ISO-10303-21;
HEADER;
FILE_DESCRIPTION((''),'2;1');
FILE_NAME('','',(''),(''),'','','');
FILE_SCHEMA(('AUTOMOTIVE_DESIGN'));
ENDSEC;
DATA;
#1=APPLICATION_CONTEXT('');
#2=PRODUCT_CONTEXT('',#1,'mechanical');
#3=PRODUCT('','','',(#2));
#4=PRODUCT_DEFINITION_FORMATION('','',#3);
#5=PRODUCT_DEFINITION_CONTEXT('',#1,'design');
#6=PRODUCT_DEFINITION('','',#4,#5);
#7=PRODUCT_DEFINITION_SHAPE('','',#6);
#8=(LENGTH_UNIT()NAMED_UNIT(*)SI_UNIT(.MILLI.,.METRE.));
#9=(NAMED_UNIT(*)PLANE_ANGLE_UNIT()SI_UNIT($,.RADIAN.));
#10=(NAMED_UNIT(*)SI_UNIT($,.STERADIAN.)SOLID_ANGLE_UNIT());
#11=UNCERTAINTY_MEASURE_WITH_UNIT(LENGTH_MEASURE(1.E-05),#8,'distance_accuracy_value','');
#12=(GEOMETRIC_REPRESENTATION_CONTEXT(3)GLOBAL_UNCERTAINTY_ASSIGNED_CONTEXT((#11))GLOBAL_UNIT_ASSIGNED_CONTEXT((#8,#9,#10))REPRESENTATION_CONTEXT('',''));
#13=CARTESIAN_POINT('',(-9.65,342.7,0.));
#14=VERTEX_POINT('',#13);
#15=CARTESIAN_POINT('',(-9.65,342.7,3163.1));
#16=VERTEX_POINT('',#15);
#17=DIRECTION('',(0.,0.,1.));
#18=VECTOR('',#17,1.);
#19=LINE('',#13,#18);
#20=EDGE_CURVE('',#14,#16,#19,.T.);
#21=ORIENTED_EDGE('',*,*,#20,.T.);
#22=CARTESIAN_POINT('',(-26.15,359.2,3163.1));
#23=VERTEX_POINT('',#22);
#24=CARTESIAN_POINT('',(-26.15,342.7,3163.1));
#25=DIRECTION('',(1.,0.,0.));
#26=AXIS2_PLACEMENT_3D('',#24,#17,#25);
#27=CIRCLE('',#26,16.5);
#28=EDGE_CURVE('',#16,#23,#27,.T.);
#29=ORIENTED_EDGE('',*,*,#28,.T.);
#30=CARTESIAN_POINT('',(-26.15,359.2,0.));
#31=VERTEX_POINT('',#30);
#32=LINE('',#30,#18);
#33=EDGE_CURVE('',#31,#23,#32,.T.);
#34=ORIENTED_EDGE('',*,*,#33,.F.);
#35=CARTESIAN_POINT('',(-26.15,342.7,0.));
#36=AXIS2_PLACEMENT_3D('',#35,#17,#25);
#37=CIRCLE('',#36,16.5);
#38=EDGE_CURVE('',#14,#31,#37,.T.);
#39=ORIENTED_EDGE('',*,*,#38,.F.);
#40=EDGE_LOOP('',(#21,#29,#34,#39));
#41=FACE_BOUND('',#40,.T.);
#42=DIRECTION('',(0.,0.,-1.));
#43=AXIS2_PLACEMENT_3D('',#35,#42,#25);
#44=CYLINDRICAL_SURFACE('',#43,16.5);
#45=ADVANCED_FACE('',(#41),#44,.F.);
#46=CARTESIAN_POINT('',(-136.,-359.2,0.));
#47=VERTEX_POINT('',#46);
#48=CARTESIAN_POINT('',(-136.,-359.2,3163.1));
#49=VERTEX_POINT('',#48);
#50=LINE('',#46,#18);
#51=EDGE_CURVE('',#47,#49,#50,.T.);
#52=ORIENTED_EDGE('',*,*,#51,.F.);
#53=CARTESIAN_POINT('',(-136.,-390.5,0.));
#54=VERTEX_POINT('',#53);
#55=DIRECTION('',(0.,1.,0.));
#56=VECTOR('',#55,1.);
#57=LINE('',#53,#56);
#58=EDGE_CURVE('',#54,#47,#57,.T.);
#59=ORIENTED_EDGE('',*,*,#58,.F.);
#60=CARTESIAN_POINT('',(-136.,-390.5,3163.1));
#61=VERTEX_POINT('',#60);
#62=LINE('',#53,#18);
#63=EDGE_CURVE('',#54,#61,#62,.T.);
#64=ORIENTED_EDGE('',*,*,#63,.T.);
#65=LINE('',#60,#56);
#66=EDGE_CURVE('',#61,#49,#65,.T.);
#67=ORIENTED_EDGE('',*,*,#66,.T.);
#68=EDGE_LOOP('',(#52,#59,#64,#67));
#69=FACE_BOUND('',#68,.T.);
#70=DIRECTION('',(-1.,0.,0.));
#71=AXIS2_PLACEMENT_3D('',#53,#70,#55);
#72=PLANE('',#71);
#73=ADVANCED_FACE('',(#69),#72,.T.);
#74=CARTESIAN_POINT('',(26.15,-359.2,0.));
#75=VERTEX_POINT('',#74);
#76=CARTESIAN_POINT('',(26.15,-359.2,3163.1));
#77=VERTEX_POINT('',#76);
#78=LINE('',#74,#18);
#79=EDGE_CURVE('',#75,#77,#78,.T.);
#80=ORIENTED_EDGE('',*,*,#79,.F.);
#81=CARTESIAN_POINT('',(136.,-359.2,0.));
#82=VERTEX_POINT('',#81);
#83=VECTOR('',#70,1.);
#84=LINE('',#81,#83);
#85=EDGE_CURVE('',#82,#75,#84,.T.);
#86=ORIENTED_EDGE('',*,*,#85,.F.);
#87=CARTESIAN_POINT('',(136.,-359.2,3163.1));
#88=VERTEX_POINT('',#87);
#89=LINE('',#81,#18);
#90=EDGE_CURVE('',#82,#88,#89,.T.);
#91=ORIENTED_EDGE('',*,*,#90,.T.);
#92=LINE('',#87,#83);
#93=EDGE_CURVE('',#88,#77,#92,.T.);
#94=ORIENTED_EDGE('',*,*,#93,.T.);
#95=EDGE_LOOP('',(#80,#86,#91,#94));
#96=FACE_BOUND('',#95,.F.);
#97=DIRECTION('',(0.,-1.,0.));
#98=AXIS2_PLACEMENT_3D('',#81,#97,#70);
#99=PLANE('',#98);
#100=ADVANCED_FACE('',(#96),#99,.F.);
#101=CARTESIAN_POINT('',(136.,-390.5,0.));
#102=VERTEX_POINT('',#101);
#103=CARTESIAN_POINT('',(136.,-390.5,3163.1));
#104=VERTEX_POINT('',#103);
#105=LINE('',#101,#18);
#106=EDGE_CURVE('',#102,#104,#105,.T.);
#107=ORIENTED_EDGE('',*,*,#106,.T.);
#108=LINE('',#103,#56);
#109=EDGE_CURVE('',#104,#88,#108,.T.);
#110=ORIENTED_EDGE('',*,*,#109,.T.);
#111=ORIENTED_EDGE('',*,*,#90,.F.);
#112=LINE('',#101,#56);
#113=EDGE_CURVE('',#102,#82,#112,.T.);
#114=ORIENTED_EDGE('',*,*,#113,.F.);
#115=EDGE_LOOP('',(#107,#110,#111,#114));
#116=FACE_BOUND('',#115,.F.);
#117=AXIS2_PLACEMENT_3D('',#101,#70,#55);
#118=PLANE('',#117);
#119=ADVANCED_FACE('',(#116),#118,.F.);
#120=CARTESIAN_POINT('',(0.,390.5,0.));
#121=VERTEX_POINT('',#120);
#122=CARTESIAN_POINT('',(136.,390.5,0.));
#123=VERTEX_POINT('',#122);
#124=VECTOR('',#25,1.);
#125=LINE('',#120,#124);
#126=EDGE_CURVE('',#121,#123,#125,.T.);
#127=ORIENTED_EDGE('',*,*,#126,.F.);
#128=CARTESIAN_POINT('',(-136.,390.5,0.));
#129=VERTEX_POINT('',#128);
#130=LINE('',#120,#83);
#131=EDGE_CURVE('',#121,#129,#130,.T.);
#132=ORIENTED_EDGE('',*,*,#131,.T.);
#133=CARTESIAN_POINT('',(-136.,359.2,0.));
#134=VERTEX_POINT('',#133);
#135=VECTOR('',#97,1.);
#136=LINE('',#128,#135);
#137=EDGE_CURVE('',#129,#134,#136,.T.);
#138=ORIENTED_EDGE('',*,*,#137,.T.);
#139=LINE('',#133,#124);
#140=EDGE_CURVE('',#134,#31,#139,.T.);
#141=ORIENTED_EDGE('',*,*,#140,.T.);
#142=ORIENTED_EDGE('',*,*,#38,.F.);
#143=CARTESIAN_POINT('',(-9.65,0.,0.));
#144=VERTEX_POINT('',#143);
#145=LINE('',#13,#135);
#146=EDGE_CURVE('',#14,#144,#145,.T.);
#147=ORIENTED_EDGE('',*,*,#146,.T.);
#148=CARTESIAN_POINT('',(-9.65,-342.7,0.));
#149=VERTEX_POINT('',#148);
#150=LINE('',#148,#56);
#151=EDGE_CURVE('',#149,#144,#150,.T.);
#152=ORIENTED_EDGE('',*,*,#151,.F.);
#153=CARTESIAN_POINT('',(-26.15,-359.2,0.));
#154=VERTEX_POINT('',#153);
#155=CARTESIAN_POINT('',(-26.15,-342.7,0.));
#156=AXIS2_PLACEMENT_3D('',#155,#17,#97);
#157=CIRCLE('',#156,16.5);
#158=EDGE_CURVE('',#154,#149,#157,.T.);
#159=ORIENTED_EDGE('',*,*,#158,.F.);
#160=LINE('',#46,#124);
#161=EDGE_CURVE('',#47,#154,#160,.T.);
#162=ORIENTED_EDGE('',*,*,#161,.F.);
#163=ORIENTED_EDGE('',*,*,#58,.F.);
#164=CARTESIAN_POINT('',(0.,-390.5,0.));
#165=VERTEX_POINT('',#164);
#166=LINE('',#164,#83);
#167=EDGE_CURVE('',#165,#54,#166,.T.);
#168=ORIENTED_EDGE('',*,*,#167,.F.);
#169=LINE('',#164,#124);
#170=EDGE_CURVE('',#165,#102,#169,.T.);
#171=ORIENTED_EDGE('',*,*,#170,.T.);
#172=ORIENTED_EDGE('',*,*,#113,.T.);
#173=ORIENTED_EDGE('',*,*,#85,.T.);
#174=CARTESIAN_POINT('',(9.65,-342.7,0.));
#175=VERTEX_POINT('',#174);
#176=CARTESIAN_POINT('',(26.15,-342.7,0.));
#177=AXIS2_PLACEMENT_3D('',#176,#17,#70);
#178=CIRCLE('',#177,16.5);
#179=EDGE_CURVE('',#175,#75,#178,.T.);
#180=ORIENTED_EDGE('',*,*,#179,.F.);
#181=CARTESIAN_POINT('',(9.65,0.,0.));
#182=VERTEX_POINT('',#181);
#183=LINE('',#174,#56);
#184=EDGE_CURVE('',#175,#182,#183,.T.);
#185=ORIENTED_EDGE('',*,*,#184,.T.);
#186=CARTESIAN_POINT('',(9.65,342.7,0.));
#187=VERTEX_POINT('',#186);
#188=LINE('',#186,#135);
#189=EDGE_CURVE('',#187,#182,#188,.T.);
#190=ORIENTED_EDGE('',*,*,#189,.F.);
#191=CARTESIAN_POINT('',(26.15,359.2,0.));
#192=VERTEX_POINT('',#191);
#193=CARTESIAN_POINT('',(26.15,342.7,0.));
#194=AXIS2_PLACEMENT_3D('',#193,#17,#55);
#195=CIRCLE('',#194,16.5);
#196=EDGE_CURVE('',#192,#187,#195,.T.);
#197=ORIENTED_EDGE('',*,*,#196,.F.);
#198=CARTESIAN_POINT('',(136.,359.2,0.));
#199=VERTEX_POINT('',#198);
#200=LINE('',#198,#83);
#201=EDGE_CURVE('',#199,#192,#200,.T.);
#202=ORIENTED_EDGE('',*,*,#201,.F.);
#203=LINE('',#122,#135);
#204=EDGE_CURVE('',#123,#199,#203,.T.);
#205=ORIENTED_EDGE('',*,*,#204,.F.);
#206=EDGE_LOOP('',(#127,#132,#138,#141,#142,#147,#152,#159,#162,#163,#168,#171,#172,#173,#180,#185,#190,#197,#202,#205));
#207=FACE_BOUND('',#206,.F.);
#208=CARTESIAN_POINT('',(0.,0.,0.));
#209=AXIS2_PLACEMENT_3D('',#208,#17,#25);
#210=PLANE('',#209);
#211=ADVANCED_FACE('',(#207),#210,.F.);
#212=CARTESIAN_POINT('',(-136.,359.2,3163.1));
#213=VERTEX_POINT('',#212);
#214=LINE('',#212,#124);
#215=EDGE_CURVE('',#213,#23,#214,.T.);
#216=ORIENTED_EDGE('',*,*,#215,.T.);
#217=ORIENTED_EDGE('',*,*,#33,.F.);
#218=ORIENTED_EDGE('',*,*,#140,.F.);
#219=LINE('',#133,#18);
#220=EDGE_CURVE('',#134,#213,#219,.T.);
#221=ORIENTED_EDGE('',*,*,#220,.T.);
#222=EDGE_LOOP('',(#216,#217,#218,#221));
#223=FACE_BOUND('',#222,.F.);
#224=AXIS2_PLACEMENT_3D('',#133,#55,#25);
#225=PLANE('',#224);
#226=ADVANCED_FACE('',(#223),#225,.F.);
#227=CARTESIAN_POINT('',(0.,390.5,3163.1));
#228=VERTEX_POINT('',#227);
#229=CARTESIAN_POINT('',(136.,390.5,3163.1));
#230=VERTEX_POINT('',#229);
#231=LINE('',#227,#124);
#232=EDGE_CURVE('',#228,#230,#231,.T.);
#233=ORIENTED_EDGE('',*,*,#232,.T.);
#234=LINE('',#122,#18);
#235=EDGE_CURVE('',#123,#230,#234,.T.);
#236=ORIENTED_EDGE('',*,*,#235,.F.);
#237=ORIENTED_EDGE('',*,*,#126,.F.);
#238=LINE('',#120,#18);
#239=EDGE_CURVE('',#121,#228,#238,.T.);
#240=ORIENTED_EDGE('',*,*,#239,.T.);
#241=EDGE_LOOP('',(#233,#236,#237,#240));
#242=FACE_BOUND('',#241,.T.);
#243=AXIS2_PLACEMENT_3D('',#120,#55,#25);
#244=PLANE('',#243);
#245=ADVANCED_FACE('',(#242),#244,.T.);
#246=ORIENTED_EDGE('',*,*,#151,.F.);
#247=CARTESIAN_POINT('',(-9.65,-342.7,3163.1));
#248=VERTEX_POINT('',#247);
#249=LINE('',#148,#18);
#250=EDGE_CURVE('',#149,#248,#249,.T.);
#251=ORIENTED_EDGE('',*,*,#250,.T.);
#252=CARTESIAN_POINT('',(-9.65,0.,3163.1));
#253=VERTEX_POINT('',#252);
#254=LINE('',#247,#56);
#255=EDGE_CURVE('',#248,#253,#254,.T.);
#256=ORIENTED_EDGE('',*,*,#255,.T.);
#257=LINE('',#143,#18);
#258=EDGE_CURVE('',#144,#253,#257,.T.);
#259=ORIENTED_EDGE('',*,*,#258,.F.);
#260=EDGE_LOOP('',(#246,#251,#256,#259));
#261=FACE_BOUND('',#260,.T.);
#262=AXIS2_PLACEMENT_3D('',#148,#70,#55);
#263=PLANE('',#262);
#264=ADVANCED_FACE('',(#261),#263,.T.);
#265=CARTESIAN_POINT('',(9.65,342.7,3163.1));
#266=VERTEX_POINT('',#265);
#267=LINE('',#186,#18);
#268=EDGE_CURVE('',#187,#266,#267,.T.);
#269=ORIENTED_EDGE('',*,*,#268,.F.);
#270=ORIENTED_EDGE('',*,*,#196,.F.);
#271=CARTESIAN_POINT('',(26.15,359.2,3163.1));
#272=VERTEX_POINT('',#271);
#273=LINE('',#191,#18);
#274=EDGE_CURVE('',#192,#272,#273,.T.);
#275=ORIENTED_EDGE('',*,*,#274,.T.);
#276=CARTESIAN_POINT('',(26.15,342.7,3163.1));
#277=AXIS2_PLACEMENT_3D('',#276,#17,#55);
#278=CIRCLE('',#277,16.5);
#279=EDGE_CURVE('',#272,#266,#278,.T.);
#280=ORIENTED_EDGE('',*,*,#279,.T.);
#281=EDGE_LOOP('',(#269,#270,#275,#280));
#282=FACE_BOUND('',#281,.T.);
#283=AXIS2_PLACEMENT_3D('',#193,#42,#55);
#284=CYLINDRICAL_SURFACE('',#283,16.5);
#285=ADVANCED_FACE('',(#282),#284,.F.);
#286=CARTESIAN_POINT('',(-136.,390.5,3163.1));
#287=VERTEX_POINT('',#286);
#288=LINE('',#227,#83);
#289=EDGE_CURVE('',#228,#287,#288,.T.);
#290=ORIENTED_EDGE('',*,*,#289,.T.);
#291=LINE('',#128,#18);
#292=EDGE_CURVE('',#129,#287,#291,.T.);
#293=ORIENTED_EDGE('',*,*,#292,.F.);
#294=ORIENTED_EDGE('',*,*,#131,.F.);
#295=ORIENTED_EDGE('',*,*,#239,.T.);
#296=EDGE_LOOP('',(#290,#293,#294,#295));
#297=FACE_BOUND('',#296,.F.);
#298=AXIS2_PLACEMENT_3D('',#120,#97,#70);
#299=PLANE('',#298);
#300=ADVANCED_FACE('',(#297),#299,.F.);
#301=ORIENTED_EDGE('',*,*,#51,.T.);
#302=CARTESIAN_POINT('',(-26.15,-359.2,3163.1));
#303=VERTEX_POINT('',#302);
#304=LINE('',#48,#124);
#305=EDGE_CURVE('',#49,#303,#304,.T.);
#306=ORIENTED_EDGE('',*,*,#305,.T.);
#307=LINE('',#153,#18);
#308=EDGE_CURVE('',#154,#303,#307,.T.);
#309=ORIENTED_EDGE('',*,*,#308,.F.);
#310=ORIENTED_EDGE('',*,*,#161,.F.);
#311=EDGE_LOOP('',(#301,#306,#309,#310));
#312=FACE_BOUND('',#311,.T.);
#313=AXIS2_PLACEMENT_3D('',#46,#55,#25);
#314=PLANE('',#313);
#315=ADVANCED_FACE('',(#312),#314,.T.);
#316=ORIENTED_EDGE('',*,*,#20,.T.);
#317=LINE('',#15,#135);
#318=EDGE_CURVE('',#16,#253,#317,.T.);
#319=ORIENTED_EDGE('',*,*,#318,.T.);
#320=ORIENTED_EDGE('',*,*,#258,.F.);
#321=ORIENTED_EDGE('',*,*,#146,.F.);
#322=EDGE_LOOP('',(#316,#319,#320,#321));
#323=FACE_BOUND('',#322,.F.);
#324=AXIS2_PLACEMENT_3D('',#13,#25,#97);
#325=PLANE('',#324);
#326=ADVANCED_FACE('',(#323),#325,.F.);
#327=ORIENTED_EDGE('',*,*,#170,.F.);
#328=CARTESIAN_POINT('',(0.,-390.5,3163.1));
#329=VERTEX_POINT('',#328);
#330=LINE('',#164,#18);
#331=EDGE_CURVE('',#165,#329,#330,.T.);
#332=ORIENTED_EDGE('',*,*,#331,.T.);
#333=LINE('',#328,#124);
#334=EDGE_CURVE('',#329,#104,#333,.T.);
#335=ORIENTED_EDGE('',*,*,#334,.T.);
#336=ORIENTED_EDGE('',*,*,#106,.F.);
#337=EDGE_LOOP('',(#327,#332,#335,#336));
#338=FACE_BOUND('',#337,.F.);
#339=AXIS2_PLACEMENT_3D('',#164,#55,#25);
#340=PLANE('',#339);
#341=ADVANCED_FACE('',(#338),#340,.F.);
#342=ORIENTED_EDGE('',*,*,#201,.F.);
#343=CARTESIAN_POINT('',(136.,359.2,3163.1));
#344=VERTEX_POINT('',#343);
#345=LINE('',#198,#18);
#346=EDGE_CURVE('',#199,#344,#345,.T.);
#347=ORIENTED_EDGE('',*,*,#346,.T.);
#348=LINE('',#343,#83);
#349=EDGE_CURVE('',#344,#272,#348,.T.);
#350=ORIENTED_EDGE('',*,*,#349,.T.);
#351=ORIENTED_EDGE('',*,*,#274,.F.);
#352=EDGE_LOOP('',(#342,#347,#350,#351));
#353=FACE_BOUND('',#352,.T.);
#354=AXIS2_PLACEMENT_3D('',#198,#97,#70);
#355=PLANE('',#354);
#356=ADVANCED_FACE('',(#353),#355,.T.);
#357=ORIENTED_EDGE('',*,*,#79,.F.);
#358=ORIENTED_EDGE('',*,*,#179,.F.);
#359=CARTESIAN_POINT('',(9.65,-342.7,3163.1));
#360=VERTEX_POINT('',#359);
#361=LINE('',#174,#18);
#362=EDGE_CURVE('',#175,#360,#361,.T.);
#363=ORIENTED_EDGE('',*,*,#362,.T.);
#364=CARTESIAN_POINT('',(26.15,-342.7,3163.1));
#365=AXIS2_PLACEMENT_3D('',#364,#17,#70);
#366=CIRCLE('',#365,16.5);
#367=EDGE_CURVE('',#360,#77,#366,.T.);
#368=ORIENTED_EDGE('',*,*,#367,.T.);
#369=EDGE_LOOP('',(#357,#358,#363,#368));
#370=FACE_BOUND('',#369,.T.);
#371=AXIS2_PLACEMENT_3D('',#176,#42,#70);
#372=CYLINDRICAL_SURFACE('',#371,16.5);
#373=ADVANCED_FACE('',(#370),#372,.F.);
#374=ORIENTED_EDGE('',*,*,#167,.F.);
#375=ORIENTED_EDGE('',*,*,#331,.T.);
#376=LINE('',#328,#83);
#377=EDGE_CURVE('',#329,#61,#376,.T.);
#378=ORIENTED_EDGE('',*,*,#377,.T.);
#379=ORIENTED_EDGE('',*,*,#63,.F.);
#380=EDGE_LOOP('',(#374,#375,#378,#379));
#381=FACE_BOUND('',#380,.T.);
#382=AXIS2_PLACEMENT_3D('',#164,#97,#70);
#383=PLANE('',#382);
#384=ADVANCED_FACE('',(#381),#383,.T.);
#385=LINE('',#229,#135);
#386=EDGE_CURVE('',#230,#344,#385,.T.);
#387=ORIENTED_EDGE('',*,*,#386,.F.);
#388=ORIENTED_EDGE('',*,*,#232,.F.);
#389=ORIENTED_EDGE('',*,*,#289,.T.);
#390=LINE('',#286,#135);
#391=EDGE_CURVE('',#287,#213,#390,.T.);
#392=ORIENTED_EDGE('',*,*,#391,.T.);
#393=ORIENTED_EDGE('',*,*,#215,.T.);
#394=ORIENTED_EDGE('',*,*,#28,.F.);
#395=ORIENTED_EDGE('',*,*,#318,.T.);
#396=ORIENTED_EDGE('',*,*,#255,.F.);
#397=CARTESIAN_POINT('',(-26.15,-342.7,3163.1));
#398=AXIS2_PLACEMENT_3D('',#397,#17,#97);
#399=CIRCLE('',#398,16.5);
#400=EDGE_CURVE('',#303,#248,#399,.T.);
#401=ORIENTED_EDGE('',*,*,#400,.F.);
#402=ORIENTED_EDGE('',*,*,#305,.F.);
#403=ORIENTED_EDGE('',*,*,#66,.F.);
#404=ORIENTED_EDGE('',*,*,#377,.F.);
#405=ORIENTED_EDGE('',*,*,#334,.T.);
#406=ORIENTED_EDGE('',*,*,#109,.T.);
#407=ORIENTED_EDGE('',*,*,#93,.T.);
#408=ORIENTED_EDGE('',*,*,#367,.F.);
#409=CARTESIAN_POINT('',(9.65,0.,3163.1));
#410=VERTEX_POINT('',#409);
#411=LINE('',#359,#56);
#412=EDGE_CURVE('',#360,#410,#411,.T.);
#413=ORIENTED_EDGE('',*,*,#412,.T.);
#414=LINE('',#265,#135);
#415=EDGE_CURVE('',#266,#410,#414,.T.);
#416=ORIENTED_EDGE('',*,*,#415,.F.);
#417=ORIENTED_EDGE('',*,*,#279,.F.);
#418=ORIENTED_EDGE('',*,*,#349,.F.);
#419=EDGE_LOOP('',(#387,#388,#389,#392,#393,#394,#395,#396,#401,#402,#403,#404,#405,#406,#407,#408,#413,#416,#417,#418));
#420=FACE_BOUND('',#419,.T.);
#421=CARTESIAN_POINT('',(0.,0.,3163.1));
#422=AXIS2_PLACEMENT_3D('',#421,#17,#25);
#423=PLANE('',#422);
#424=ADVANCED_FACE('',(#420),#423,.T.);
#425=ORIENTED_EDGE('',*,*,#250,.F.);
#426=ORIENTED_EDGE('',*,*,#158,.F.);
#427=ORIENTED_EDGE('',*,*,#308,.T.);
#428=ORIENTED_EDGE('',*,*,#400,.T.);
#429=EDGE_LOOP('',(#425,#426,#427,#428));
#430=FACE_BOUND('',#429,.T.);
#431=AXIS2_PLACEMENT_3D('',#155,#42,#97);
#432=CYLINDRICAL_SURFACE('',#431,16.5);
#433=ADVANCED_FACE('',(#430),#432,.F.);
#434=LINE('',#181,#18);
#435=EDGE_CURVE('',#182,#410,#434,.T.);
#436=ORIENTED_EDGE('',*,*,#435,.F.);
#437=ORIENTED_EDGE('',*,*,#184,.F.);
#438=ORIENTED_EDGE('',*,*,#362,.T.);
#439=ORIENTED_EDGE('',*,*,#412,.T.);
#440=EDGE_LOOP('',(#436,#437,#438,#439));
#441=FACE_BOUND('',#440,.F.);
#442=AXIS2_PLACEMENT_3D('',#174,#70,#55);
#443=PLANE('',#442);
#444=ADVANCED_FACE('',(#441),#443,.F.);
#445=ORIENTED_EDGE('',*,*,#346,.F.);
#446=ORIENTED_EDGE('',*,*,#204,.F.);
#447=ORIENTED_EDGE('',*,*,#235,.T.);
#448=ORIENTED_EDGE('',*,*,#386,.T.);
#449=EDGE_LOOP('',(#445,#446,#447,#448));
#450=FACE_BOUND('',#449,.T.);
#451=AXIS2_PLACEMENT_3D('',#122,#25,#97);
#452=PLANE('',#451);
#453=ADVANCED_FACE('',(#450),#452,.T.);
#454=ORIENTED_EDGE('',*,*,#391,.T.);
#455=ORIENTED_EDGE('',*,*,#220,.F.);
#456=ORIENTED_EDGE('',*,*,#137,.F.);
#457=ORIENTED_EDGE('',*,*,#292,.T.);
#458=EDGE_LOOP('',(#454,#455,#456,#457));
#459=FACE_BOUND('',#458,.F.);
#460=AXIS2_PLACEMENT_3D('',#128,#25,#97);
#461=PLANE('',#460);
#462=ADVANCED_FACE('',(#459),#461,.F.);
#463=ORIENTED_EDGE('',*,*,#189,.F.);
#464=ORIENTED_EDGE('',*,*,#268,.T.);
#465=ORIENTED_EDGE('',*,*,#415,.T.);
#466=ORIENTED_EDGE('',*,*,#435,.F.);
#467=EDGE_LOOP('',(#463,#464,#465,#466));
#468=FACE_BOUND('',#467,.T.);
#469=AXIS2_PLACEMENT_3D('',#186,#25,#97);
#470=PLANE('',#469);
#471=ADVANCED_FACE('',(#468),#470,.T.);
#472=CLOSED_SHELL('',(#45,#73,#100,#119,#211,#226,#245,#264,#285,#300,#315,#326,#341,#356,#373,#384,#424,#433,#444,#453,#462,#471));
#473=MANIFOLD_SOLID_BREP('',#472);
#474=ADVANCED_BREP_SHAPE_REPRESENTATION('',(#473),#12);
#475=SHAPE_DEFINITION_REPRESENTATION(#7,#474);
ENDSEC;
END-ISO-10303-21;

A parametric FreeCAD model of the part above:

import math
import FreeCAD as App
import Part
import Sketcher

V = App.Vector

doc = App.newDocument("Part")
body = doc.addObject("PartDesign::Body", "Body")

sketch1 = doc.addObject("Sketcher::SketchObject", "Sketch")
body.addObject(sketch1)
sketch1.AttachmentSupport = (doc.XY_Plane, [""])
sketch1.MapMode = "FlatFace"
sketch1.addGeometry(Part.LineSegment(V(-136, -359.2, 0), V(-136, -390.5, 0)), False)
sketch1.addGeometry(Part.LineSegment(V(-136, -390.5, 0), V(136, -390.5, 0)), False)
sketch1.addGeometry(Part.LineSegment(V(136, -390.5, 0), V(136, -359.2, 0)), False)
sketch1.addGeometry(Part.LineSegment(V(136, -359.2, 0), V(26.15, -359.2, 0)), False)
sketch1.addGeometry(Part.ArcOfCircle(Part.Circle(V(26.15, -342.7, 0), V(0, 0, 1), 16.5), math.radians(180), math.radians(270)), False)
sketch1.addGeometry(Part.LineSegment(V(9.65, -342.7, 0), V(9.65, 342.7, 0)), False)
sketch1.addGeometry(Part.ArcOfCircle(Part.Circle(V(26.15, 342.7, 0), V(0, 0, 1), 16.5), math.radians(90), math.radians(180)), False)
sketch1.addGeometry(Part.LineSegment(V(26.15, 359.2, 0), V(136, 359.2, 0)), False)
sketch1.addGeometry(Part.LineSegment(V(136, 359.2, 0), V(136, 390.5, 0)), False)
sketch1.addGeometry(Part.LineSegment(V(136, 390.5, 0), V(-136, 390.5, 0)), False)
sketch1.addGeometry(Part.LineSegment(V(-136, 390.5, 0), V(-136, 359.2, 0)), False)
sketch1.addGeometry(Part.LineSegment(V(-136, 359.2, 0), V(-26.15, 359.2, 0)), False)
sketch1.addGeometry(Part.ArcOfCircle(Part.Circle(V(-26.15, 342.7, 0), V(0, 0, 1), 16.5), math.radians(0), math.radians(90)), False)
sketch1.addGeometry(Part.LineSegment(V(-9.65, 342.7, 0), V(-9.65, -342.7, 0)), False)
sketch1.addGeometry(Part.ArcOfCircle(Part.Circle(V(-26.15, -342.7, 0), V(0, 0, 1), 16.5), math.radians(-90), math.radians(0)), False)
sketch1.addGeometry(Part.LineSegment(V(-26.15, -359.2, 0), V(-136, -359.2, 0)), False)
sketch1.addConstraint(Sketcher.Constraint("Coincident", 0, 2, 1, 1))
sketch1.addConstraint(Sketcher.Constraint("Coincident", 1, 2, 2, 1))
sketch1.addConstraint(Sketcher.Constraint("Coincident", 2, 2, 3, 1))
sketch1.addConstraint(Sketcher.Constraint("Tangent", 3, 2, 4, 2))
sketch1.addConstraint(Sketcher.Constraint("Tangent", 4, 1, 5, 1))
sketch1.addConstraint(Sketcher.Constraint("Tangent", 5, 2, 6, 2))
sketch1.addConstraint(Sketcher.Constraint("Tangent", 6, 1, 7, 1))
sketch1.addConstraint(Sketcher.Constraint("Coincident", 7, 2, 8, 1))
sketch1.addConstraint(Sketcher.Constraint("Coincident", 8, 2, 9, 1))
sketch1.addConstraint(Sketcher.Constraint("Coincident", 9, 2, 10, 1))
sketch1.addConstraint(Sketcher.Constraint("Coincident", 10, 2, 11, 1))
sketch1.addConstraint(Sketcher.Constraint("Tangent", 11, 2, 12, 2))
sketch1.addConstraint(Sketcher.Constraint("Tangent", 12, 1, 13, 1))
sketch1.addConstraint(Sketcher.Constraint("Tangent", 13, 2, 14, 2))
sketch1.addConstraint(Sketcher.Constraint("Tangent", 14, 1, 15, 1))
sketch1.addConstraint(Sketcher.Constraint("Coincident", 15, 2, 0, 1))
sketch1.addConstraint(Sketcher.Constraint("Vertical", 0))
sketch1.addConstraint(Sketcher.Constraint("Horizontal", 1))
sketch1.addConstraint(Sketcher.Constraint("Vertical", 2))
sketch1.addConstraint(Sketcher.Constraint("Horizontal", 3))
sketch1.addConstraint(Sketcher.Constraint("Vertical", 5))
sketch1.addConstraint(Sketcher.Constraint("Horizontal", 7))
sketch1.addConstraint(Sketcher.Constraint("Vertical", 8))
sketch1.addConstraint(Sketcher.Constraint("Horizontal", 9))
sketch1.addConstraint(Sketcher.Constraint("Vertical", 10))
sketch1.addConstraint(Sketcher.Constraint("Horizontal", 11))
sketch1.addConstraint(Sketcher.Constraint("Vertical", 13))
sketch1.addConstraint(Sketcher.Constraint("Horizontal", 15))
sketch1.addConstraint(Sketcher.Constraint("Equal", 4, 6))
sketch1.addConstraint(Sketcher.Constraint("Equal", 6, 12))
sketch1.addConstraint(Sketcher.Constraint("Equal", 12, 14))
sketch1.addConstraint(Sketcher.Constraint("Symmetric", 4, 3, 12, 3, -1, 1))
sketch1.addConstraint(Sketcher.Constraint("Symmetric", 0, 2, 8, 2, -1, 1))
sketch1.addConstraint(Sketcher.Constraint("Symmetric", 7, 2, 10, 2, -2))
sketch1.addConstraint(Sketcher.Constraint("Symmetric", 2, 2, 15, 2, -2))
sketch1.addConstraint(Sketcher.Constraint("Radius", 4, 16.5))
sketch1.addConstraint(Sketcher.Constraint("DistanceY", 0, 2, 0, 1, 31.3))
sketch1.addConstraint(Sketcher.Constraint("DistanceX", 0, 2, -1, 1, 136.0))
sketch1.addConstraint(Sketcher.Constraint("DistanceY", 0, 2, -1, 1, 390.5))
sketch1.addConstraint(Sketcher.Constraint("DistanceX", -1, 1, 4, 1, 9.65))
pad1 = doc.addObject("PartDesign::Pad", "Pad")
body.addObject(pad1)
pad1.Profile = sketch1
pad1.Length = 3163.1

doc.recompute()
